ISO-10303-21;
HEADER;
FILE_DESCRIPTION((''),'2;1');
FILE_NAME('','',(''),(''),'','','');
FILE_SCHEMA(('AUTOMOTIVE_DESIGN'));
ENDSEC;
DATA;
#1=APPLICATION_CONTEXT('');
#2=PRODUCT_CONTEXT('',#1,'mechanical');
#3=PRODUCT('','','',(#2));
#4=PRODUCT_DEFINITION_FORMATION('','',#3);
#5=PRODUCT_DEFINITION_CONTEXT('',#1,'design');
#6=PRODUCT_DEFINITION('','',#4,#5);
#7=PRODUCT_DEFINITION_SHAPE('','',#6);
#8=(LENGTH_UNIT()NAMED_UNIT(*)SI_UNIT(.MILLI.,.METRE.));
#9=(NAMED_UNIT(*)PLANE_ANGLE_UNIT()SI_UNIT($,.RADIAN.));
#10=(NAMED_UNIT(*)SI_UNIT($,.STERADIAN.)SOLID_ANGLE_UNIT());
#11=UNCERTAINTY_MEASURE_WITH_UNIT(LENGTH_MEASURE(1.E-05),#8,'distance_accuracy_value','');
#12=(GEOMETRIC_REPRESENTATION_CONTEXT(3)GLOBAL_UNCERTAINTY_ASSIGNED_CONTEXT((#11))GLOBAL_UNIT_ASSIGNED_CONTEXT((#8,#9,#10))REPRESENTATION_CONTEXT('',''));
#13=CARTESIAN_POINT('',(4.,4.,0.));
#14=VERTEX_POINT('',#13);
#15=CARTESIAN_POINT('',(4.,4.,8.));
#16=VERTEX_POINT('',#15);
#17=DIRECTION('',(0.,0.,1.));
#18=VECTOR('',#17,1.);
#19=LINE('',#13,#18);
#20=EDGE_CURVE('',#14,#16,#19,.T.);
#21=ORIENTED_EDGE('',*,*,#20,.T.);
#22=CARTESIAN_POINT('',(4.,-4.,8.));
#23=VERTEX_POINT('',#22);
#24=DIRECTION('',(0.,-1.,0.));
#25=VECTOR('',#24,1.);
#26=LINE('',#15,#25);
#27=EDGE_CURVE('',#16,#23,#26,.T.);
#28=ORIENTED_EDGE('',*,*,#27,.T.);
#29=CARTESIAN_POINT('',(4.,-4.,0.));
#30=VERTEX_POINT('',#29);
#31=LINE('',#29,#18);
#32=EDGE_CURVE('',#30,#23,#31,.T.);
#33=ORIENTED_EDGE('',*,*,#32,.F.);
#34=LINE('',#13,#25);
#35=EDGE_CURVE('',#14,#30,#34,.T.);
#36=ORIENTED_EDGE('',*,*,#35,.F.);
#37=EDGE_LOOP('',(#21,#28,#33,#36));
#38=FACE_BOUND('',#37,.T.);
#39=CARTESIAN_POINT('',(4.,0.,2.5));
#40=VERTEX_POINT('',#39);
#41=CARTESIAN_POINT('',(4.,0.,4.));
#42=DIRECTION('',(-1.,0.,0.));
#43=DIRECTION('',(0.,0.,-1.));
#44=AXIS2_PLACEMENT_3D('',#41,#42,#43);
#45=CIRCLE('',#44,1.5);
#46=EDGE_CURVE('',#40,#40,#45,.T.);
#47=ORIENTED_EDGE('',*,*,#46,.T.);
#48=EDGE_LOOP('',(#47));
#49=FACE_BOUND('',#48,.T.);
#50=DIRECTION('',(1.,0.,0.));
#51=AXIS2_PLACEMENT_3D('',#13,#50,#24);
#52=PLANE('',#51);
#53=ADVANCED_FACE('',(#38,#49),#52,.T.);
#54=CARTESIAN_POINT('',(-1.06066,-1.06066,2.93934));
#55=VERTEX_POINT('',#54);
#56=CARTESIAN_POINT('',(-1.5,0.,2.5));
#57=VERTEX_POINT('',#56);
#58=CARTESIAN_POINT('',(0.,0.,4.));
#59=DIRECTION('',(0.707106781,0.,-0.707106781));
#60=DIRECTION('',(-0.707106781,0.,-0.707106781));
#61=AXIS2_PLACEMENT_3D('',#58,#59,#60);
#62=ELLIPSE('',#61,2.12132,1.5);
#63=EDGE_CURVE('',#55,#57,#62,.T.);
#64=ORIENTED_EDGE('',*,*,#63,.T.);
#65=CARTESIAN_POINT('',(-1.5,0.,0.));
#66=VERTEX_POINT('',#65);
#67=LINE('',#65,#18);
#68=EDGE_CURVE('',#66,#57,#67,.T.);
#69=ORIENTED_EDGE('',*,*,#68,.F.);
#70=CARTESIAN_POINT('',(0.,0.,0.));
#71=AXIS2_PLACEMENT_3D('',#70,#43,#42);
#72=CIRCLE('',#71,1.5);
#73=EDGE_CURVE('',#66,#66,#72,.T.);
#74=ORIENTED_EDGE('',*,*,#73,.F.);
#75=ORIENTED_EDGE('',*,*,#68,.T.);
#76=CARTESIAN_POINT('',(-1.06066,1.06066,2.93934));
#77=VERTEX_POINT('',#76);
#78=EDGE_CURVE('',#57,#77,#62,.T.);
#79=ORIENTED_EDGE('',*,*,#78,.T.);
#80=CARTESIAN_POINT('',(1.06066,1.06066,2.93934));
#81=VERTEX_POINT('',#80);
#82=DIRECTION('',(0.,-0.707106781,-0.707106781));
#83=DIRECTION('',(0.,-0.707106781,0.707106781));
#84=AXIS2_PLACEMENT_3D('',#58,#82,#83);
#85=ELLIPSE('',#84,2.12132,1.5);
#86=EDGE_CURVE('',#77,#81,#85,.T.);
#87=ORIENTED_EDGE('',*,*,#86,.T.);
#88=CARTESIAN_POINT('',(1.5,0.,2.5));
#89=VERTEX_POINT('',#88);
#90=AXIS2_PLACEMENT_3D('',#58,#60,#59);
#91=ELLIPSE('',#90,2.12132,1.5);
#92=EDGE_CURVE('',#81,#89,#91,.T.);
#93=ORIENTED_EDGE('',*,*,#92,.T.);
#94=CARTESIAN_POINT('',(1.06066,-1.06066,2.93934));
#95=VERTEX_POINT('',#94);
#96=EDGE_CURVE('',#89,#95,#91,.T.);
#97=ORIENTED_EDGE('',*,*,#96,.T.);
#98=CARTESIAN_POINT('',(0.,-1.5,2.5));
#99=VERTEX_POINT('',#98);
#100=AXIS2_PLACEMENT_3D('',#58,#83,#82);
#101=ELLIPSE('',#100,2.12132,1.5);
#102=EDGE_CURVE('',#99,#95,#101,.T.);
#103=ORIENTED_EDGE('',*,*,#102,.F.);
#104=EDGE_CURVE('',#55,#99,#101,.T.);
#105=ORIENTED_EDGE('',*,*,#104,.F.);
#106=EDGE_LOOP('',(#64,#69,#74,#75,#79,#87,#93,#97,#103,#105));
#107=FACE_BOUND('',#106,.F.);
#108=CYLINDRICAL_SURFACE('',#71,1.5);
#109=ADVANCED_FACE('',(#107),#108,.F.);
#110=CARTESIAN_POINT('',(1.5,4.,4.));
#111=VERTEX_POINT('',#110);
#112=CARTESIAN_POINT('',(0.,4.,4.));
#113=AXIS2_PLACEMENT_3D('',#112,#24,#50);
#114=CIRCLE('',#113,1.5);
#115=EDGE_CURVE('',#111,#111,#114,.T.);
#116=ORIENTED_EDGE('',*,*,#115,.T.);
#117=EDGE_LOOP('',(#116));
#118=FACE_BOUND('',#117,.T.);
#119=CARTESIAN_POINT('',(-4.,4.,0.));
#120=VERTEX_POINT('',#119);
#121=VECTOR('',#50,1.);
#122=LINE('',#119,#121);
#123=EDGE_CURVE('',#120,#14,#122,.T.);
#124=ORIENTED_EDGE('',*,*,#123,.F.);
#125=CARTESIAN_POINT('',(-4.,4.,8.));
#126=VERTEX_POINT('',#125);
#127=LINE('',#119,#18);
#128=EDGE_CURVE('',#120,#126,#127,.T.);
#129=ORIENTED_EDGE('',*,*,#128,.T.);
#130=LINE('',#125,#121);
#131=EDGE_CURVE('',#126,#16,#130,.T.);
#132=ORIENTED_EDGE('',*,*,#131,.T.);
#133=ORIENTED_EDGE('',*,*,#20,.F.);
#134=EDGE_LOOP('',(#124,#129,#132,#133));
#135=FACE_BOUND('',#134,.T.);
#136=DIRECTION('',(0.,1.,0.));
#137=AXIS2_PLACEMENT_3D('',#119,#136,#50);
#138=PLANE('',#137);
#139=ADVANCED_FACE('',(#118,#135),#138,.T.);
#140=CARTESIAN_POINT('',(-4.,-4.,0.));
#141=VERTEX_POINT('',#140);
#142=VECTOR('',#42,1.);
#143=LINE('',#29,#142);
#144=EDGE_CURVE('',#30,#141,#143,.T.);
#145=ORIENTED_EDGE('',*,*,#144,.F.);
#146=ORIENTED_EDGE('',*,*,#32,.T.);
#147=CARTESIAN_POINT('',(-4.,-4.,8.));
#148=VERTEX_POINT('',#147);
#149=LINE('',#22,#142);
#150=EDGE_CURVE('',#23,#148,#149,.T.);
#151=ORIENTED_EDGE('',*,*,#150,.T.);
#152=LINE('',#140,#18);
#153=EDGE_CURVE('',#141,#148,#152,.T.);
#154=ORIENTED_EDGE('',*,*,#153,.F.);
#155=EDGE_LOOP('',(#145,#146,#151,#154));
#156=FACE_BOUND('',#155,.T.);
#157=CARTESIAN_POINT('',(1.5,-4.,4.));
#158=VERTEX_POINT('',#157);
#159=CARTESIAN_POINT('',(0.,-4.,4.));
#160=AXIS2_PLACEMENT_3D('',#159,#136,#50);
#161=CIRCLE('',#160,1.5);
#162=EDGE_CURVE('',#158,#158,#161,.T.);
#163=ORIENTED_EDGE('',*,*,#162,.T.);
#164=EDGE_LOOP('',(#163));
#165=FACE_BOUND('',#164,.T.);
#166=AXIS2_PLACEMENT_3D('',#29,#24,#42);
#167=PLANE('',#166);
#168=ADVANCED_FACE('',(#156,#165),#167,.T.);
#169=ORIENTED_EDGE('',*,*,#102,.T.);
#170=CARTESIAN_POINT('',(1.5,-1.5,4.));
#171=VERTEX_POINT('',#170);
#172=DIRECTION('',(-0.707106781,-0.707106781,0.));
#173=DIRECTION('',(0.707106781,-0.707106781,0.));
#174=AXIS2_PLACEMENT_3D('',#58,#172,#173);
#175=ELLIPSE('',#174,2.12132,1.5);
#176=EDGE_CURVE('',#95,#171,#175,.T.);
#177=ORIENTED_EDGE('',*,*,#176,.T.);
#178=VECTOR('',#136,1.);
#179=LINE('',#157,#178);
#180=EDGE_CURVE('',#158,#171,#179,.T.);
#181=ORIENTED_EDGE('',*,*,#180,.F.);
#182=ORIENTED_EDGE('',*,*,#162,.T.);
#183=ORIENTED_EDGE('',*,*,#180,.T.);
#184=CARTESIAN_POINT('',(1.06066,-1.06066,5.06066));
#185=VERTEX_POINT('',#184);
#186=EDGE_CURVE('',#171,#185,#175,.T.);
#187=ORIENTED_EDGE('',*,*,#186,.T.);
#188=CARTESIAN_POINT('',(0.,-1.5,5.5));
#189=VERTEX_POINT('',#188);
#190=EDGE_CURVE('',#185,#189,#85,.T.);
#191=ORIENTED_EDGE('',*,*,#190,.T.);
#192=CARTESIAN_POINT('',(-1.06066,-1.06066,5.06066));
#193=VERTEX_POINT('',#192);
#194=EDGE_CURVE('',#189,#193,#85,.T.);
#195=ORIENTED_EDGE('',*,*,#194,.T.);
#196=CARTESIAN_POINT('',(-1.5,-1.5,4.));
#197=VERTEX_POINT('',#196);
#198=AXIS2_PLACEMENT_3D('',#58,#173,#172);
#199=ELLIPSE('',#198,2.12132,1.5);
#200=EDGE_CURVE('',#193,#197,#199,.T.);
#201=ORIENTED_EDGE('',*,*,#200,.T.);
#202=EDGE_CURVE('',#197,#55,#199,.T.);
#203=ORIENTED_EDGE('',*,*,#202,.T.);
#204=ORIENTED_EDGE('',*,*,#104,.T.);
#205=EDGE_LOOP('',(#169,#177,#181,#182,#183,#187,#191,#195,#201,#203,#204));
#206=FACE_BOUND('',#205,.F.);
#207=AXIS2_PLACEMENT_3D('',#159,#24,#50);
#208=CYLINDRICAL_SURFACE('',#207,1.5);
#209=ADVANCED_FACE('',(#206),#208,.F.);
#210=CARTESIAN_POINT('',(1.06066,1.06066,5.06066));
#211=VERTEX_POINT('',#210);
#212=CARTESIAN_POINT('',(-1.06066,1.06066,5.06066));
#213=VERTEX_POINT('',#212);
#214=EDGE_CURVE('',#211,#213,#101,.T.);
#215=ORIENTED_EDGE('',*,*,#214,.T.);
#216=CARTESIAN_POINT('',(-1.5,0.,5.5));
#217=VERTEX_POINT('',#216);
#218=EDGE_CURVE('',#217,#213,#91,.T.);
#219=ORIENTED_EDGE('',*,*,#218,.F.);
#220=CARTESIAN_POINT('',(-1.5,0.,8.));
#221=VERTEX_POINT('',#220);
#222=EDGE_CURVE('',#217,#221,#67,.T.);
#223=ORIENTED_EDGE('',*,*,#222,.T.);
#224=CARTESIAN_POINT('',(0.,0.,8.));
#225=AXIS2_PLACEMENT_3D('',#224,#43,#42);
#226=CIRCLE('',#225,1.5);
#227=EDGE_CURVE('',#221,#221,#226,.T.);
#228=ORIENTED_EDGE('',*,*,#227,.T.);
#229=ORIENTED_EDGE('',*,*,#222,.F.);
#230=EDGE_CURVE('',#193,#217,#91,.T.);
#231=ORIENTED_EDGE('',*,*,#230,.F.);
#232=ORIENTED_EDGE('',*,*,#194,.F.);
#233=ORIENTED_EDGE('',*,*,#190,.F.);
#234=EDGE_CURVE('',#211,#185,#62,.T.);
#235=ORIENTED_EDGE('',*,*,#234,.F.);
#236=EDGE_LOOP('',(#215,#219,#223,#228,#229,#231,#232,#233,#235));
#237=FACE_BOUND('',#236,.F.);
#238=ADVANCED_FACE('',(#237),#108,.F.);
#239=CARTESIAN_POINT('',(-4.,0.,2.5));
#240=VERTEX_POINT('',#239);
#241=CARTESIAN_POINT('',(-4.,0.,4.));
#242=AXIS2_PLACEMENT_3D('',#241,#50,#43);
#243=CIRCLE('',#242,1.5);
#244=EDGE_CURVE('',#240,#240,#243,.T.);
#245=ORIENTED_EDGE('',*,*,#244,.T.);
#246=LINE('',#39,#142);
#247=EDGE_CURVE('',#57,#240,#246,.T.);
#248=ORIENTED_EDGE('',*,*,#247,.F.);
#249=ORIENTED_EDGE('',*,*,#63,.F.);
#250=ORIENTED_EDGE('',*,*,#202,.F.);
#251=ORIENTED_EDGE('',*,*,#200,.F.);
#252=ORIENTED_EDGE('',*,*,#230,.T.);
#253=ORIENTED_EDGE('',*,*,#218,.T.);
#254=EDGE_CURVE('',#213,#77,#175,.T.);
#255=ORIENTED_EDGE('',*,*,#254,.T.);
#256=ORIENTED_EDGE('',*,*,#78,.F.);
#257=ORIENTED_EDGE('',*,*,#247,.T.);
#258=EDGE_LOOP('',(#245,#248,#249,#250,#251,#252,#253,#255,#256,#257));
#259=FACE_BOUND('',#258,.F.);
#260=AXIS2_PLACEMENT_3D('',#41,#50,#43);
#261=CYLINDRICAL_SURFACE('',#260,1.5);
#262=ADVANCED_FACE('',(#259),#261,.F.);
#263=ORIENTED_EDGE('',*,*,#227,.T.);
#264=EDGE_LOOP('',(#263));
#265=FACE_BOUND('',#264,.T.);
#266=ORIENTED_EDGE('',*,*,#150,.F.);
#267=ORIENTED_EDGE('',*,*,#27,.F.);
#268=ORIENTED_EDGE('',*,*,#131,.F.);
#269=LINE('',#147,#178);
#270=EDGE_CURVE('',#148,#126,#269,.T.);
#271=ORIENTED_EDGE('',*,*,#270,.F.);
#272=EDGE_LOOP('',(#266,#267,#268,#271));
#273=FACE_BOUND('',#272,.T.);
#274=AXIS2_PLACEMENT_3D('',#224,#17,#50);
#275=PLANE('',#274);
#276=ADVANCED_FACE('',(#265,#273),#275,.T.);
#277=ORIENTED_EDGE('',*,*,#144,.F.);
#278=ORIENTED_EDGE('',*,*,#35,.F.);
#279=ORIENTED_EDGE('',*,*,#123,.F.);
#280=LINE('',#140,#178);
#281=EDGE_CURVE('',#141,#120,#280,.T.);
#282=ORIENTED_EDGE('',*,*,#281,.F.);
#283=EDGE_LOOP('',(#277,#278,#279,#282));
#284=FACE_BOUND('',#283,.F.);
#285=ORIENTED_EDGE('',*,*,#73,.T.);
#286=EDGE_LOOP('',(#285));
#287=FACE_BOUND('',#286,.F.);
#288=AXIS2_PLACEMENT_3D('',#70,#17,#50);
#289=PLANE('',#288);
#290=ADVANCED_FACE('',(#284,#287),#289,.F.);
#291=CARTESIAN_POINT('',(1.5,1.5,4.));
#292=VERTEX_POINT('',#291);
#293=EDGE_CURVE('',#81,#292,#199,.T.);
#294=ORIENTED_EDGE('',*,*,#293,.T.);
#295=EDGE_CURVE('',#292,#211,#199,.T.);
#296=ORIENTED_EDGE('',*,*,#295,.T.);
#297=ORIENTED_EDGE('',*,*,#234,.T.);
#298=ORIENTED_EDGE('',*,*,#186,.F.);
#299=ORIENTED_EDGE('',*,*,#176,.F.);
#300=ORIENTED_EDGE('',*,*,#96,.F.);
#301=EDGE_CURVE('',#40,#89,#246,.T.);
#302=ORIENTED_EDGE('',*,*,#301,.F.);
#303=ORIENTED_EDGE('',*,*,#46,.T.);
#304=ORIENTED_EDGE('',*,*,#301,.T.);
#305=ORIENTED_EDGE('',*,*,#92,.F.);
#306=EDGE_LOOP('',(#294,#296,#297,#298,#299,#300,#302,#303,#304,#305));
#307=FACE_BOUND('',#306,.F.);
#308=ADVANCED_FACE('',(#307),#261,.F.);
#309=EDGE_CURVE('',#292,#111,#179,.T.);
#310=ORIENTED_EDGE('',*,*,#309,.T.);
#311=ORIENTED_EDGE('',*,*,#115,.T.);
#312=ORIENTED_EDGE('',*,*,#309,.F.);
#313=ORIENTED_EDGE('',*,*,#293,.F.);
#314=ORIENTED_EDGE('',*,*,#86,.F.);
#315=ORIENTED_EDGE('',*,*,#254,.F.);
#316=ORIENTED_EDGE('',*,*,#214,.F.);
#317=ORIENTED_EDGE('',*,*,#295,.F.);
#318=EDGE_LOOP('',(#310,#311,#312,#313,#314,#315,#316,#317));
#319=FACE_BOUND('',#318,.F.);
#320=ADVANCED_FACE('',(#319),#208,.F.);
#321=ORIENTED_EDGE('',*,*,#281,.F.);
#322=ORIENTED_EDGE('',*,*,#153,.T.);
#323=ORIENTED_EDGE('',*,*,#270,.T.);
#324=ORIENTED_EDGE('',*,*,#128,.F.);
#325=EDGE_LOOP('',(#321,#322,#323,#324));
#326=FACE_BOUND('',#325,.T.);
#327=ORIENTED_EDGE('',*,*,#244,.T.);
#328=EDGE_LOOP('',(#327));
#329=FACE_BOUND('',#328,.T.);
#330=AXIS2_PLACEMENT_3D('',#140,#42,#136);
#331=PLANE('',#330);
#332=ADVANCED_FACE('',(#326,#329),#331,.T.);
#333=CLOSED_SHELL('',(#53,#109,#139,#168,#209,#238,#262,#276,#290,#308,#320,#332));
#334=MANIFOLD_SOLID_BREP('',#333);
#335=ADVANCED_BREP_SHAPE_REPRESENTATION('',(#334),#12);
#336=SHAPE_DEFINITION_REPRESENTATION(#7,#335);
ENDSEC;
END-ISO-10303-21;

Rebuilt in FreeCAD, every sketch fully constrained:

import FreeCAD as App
import Part
import Sketcher

V = App.Vector

doc = App.newDocument("Part")
params = doc.addObject("Spreadsheet::Sheet", "Params")
for row, (alias, value) in enumerate([
    ("sketch1_width", "8 mm"),
    ("pad1_length", "8 mm"),
    ("sketch2_diameter", "3 mm"),
    ("pocket1_length", "8 mm"),
    ("sketch3_diameter", "3 mm"),
    ("pocket2_length", "8 mm"),
    ("sketch4_diameter", "3 mm"),
    ("pocket3_length", "14.25 mm"),
], start=1):
    params.set(f"A{row}", alias)
    params.set(f"B{row}", "=" + value)
    params.setAlias(f"B{row}", alias)

body = doc.addObject("PartDesign::Body", "Body")

# Sketch on XY plane
sketch1 = body.newObject("Sketcher::SketchObject", "Sketch")
sketch1.AttachmentSupport = (doc.getObject("XY_Plane"), [""])
sketch1.MapMode = "FlatFace"
sketch1.addGeometry(Part.LineSegment(V(-4, -4, 0), V(4, -4, 0)), False)
sketch1.addGeometry(Part.LineSegment(V(4, -4, 0), V(4, 4, 0)), False)
sketch1.addGeometry(Part.LineSegment(V(4, 4, 0), V(-4, 4, 0)), False)
sketch1.addGeometry(Part.LineSegment(V(-4, 4, 0), V(-4, -4, 0)), False)
sketch1.addConstraint(Sketcher.Constraint("Coincident", 0, 2, 1, 1))
sketch1.addConstraint(Sketcher.Constraint("Coincident", 1, 2, 2, 1))
sketch1.addConstraint(Sketcher.Constraint("Coincident", 2, 2, 3, 1))
sketch1.addConstraint(Sketcher.Constraint("Coincident", 3, 2, 0, 1))
sketch1.addConstraint(Sketcher.Constraint("Horizontal", 0))
sketch1.addConstraint(Sketcher.Constraint("Vertical", 1))
sketch1.addConstraint(Sketcher.Constraint("Horizontal", 2))
sketch1.addConstraint(Sketcher.Constraint("Vertical", 3))
sketch1.addConstraint(Sketcher.Constraint("Symmetric", 0, 2, 2, 2, -1, 1))
sketch1.addConstraint(Sketcher.Constraint("Equal", 2, 1))
sketch1.addConstraint(Sketcher.Constraint("DistanceX", 0, 1, 0, 2, 8.0))
sketch1.setExpression("Constraints[10]", "Params.sketch1_width")
pad1 = body.newObject("PartDesign::Pad", "Pad")
pad1.Profile = sketch1
pad1.setExpression("Length", "Params.pad1_length")

# Sketch on XZ plane
sketch2 = body.newObject("Sketcher::SketchObject", "Sketch001")
sketch2.AttachmentSupport = (doc.getObject("XZ_Plane"), [""])
sketch2.MapMode = "FlatFace"
sketch2.AttachmentOffset = App.Placement(V(0, 0, 4), App.Rotation())
sketch2.addGeometry(Part.Circle(V(0, 4, 0), V(0, 0, 1), 1.5), False)
sketch2.addConstraint(Sketcher.Constraint("PointOnObject", 0, 3, -2))
sketch2.addConstraint(Sketcher.Constraint("Diameter", 0, 3.0))
sketch2.addConstraint(Sketcher.Constraint("DistanceY", -1, 1, 0, 3, 4.0))
sketch2.setExpression("Constraints[1]", "Params.sketch2_diameter")
pocket1 = body.newObject("PartDesign::Pocket", "Pocket")
pocket1.Profile = sketch2
pocket1.setExpression("Length", "Params.pocket1_length")

# Sketch on XY plane
sketch3 = body.newObject("Sketcher::SketchObject", "Sketch002")
sketch3.AttachmentSupport = (doc.getObject("XY_Plane"), [""])
sketch3.MapMode = "FlatFace"
sketch3.addGeometry(Part.Circle(V(0, 0, 0), V(0, 0, 1), 1.5), False)
sketch3.addConstraint(Sketcher.Constraint("Coincident", 0, 3, -1, 1))
sketch3.addConstraint(Sketcher.Constraint("Diameter", 0, 3.0))
sketch3.setExpression("Constraints[1]", "Params.sketch3_diameter")
pocket2 = body.newObject("PartDesign::Pocket", "Pocket001")
pocket2.Profile = sketch3
pocket2.setExpression("Length", "Params.pocket2_length")
pocket2.Reversed = True

# Sketch on YZ plane
sketch4 = body.newObject("Sketcher::SketchObject", "Sketch003")
sketch4.AttachmentSupport = (doc.getObject("YZ_Plane"), [""])
sketch4.MapMode = "FlatFace"
sketch4.AttachmentOffset = App.Placement(V(0, 0, 4), App.Rotation())
sketch4.addGeometry(Part.Circle(V(0, 4, 0), V(0, 0, 1), 1.5), False)
sketch4.addConstraint(Sketcher.Constraint("PointOnObject", 0, 3, -2))
sketch4.addConstraint(Sketcher.Constraint("Diameter", 0, 3.0))
sketch4.addConstraint(Sketcher.Constraint("DistanceY", -1, 1, 0, 3, 4.0))
sketch4.setExpression("Constraints[1]", "Params.sketch4_diameter")
pocket3 = body.newObject("PartDesign::Pocket", "Pocket002")
pocket3.Profile = sketch4
pocket3.setExpression("Length", "Params.pocket3_length")

doc.recompute()
